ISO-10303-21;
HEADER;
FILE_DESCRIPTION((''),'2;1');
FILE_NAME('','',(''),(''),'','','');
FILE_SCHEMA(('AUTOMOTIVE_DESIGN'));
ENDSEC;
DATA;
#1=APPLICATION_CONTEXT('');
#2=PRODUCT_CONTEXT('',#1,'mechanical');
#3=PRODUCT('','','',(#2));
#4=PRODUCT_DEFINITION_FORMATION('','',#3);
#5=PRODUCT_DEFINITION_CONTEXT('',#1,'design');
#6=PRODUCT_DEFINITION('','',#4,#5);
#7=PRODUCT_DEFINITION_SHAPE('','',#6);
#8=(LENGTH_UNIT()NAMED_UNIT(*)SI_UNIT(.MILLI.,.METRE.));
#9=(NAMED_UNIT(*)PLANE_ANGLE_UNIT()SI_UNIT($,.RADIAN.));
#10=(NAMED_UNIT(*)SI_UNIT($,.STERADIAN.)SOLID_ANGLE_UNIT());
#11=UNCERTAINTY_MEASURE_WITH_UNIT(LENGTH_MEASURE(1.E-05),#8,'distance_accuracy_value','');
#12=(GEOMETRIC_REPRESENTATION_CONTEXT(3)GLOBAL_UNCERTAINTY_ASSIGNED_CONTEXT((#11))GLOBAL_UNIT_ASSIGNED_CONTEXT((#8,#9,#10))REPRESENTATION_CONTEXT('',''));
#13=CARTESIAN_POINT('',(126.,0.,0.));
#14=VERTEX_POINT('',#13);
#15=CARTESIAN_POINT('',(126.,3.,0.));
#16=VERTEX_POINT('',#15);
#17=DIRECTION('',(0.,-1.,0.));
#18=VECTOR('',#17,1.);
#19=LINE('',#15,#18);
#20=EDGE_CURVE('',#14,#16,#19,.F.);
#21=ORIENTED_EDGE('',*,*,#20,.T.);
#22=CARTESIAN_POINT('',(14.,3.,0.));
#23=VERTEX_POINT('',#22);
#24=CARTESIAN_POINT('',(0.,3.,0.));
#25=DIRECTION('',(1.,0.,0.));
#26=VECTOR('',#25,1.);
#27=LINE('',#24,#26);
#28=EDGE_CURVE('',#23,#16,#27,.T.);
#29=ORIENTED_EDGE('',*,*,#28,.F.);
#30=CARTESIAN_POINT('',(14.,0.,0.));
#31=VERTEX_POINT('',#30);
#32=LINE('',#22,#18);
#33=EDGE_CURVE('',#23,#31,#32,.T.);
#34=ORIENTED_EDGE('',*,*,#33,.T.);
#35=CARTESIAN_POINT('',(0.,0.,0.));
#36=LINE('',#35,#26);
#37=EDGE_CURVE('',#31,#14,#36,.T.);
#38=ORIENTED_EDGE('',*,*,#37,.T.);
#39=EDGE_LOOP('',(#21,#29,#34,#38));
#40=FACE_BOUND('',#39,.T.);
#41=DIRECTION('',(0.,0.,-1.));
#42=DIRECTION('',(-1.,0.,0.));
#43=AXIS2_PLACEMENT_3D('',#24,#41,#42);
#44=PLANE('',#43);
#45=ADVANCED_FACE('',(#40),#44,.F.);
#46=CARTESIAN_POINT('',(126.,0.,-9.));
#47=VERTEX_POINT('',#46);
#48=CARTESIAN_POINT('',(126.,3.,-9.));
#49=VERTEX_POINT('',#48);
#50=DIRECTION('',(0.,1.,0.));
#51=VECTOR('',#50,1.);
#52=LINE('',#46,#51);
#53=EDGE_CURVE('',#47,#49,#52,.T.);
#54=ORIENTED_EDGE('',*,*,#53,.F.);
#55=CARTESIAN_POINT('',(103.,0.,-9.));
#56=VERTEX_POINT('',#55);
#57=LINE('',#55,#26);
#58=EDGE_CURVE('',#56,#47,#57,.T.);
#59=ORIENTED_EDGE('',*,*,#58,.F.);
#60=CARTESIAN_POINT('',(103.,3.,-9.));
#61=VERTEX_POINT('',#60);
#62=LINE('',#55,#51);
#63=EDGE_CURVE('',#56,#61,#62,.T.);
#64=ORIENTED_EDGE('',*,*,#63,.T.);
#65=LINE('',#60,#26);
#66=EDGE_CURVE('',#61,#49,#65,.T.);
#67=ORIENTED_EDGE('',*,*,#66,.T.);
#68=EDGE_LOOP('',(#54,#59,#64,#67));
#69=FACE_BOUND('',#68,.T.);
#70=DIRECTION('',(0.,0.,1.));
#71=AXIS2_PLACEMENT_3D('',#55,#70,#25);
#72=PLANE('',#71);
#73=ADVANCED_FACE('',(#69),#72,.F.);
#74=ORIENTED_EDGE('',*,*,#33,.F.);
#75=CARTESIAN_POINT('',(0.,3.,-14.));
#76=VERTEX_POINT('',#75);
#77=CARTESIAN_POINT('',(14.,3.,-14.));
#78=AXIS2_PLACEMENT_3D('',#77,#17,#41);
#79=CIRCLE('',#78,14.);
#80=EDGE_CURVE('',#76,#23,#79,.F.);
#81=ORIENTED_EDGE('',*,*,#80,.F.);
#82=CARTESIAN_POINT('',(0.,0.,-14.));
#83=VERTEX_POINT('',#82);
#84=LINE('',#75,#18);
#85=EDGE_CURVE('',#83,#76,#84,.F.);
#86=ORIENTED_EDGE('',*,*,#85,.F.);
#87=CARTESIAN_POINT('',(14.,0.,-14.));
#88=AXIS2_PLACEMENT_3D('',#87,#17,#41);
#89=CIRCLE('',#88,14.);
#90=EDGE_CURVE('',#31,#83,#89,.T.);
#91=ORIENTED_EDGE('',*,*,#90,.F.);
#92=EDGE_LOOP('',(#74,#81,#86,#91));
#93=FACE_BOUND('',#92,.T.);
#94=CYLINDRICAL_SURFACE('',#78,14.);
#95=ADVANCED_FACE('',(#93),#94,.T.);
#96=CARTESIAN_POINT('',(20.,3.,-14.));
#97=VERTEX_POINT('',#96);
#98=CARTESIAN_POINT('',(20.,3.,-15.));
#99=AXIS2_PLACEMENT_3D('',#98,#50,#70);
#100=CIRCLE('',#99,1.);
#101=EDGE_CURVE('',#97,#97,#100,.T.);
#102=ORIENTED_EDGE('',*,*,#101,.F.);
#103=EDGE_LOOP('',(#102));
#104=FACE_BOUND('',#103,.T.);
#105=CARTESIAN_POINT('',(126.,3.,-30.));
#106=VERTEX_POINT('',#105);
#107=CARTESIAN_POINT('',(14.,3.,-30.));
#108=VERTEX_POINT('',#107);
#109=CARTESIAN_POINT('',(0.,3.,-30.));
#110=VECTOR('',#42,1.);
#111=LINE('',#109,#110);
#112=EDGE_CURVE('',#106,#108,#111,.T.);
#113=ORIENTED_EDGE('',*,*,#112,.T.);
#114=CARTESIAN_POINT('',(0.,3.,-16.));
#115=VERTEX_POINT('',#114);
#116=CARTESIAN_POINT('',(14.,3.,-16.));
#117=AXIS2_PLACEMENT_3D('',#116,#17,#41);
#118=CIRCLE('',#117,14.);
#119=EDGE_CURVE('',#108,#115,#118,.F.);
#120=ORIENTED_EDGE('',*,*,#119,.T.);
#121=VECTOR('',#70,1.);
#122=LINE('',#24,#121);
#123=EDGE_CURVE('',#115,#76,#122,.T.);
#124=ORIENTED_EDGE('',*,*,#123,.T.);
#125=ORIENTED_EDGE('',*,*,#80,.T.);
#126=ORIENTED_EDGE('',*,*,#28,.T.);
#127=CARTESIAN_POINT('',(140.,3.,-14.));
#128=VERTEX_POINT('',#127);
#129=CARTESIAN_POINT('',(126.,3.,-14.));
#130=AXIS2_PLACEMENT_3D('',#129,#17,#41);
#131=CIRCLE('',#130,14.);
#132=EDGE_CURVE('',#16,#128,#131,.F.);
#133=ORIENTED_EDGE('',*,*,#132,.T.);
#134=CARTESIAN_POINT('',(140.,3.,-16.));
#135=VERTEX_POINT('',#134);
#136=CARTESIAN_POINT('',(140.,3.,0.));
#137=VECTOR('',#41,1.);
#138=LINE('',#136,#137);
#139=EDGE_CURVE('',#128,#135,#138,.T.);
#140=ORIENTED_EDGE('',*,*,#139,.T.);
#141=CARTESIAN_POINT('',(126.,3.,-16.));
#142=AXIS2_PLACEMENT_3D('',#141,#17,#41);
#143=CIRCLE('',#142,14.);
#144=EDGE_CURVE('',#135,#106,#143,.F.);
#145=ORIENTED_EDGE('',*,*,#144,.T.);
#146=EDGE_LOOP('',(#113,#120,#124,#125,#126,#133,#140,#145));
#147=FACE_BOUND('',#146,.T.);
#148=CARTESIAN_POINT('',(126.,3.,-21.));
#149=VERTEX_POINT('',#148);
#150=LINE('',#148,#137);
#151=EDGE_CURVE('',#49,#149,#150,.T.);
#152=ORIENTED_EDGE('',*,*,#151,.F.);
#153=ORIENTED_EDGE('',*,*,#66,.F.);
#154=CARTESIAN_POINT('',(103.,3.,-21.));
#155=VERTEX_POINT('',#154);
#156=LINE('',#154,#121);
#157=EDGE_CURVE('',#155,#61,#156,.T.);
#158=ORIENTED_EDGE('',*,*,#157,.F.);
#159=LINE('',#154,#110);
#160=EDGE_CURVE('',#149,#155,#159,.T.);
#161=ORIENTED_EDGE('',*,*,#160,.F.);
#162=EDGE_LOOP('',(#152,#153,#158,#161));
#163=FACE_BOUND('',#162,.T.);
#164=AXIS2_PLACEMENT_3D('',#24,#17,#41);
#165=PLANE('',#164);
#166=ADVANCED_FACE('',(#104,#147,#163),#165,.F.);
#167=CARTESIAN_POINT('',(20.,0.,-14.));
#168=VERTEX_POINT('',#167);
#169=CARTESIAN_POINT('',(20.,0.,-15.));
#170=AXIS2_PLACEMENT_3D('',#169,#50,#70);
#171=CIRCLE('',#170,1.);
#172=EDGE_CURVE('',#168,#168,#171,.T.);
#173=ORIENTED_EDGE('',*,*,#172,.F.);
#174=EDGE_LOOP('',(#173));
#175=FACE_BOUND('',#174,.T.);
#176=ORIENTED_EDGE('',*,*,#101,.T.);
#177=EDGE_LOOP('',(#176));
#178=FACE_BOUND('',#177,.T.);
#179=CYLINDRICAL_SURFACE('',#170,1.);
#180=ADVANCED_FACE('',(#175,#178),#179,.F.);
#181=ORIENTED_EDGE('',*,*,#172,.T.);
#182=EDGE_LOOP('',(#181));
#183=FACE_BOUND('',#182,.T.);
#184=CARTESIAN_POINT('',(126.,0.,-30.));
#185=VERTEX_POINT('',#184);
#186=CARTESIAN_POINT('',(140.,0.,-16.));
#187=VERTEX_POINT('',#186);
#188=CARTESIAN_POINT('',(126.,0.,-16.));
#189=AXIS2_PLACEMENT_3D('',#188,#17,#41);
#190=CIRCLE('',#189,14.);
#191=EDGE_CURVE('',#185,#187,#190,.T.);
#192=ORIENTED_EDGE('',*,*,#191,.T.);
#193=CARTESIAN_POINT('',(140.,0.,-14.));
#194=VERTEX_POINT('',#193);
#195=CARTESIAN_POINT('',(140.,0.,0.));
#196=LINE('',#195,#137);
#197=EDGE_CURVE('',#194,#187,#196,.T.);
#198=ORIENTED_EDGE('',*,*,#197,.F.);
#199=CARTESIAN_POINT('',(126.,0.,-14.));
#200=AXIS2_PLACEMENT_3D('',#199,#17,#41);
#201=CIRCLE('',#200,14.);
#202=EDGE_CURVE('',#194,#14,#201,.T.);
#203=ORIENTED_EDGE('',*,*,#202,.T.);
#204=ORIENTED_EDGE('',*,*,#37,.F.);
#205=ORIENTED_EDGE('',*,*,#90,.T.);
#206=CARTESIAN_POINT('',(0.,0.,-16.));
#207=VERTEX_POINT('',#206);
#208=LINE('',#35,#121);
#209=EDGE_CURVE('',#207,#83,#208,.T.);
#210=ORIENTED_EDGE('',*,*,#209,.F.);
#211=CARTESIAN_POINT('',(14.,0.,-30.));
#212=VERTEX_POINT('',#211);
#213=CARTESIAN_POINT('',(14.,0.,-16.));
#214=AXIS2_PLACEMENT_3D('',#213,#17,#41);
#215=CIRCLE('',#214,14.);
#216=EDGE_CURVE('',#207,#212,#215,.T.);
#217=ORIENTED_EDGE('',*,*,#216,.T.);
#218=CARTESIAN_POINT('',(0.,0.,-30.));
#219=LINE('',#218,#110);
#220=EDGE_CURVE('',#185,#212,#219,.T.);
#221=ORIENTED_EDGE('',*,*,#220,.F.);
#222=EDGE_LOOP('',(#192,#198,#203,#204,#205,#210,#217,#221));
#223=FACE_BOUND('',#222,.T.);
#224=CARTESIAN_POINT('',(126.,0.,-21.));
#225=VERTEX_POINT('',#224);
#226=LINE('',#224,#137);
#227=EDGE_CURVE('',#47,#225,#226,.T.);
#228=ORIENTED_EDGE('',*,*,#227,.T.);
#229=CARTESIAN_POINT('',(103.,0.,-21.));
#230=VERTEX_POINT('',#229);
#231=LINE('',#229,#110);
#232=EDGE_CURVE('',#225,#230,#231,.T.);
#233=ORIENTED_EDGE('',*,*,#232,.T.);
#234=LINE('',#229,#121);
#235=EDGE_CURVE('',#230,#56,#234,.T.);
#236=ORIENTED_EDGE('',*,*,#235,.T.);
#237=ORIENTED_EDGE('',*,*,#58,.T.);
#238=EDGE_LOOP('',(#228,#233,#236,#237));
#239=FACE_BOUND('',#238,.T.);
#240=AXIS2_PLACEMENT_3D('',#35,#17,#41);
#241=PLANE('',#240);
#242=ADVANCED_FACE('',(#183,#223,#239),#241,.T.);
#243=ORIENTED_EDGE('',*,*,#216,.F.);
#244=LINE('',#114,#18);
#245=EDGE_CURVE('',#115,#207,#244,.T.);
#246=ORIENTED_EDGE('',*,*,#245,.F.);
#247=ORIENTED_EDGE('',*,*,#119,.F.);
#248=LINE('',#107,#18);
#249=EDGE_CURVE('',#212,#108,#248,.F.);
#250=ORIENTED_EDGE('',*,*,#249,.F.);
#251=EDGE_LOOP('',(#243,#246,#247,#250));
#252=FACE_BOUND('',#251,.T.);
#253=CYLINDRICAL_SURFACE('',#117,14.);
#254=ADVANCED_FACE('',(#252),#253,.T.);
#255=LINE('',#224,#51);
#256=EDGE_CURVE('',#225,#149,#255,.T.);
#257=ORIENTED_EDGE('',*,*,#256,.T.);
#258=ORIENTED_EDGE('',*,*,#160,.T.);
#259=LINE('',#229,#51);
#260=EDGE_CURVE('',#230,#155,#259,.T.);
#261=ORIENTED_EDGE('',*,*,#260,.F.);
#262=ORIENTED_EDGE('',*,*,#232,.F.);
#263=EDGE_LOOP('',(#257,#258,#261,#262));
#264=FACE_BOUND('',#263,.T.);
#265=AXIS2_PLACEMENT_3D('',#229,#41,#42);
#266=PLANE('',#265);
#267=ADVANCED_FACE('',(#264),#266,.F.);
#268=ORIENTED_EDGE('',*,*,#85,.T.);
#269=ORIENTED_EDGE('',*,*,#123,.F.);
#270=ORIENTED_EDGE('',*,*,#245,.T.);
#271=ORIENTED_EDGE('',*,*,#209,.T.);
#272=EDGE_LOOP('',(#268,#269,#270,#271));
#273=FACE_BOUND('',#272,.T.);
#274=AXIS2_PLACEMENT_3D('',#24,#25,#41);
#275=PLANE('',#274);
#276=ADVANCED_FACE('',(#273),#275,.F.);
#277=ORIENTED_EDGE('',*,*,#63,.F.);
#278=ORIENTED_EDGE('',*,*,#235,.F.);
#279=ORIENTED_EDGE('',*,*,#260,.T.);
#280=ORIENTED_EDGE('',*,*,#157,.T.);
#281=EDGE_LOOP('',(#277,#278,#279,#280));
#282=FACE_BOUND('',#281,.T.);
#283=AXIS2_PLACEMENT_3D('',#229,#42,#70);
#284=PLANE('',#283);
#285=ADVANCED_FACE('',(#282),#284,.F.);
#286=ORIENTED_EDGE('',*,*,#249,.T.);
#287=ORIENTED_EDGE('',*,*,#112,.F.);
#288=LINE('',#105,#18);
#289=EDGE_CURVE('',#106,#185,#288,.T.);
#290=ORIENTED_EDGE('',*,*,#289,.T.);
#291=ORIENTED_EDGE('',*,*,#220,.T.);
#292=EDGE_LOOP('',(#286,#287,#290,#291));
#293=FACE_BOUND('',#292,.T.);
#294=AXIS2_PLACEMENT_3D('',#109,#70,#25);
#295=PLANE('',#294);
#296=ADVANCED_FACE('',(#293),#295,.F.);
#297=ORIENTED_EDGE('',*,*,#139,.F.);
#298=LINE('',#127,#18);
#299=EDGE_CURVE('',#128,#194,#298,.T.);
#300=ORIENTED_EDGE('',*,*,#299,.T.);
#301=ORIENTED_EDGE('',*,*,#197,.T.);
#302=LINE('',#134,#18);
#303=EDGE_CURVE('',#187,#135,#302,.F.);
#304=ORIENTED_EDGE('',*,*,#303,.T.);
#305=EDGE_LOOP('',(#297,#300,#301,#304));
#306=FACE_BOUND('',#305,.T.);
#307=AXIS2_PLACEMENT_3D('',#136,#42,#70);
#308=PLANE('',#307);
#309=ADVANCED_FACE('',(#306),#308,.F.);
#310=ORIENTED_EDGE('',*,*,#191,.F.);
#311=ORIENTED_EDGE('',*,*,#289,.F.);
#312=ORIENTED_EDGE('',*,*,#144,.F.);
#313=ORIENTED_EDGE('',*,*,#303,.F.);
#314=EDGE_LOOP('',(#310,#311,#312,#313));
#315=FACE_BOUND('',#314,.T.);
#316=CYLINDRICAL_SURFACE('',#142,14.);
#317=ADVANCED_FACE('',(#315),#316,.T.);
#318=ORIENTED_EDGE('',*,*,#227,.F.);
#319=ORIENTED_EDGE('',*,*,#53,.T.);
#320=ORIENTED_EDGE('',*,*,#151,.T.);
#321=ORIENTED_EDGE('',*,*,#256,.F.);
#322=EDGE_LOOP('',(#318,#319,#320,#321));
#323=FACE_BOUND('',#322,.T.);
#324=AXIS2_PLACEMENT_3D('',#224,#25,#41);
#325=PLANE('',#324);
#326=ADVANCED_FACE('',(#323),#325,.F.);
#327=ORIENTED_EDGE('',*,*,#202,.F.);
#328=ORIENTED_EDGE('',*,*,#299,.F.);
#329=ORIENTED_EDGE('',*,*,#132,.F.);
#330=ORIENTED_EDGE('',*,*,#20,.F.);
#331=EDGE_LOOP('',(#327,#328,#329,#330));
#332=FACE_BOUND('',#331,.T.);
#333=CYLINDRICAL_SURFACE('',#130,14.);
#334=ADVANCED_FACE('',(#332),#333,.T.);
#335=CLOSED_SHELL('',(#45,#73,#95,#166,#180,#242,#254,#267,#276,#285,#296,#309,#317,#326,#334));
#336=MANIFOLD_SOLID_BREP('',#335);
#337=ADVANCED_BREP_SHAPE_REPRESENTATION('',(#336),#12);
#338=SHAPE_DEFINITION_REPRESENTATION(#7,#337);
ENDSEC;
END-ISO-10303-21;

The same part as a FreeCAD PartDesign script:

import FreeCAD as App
import Part
import Sketcher


def edges_at(feature, points):
    """Names of the edges that pass closest to the given points."""
    edges = feature.Shape.Edges
    near = lambda p: min(range(len(edges)), key=lambda i: edges[i].distToShape(Part.Vertex(*p))[0])
    return sorted({f"Edge{near(p) + 1}" for p in points})


def add_polygon(sketch, points):
    """Adds a closed chain of lines whose ends are joined by coincident constraints."""
    first, n = sketch.GeometryCount, len(points)
    for a, b in zip(points, points[1:] + points[:1]):
        sketch.addGeometry(Part.LineSegment(App.Vector(*a, 0), App.Vector(*b, 0)), False)
    for i in range(n):
        sketch.addConstraint(Sketcher.Constraint("Coincident", first + i, 2, first + (i + 1) % n, 1))

doc = App.newDocument("Part")
body = doc.addObject("PartDesign::Body", "Body")

sketch1 = body.newObject("Sketcher::SketchObject", "Sketch")
sketch1.AttachmentSupport = (doc.getObject("XZ_Plane"), [""])
sketch1.MapMode = "FlatFace"
add_polygon(sketch1, [(0, -30), (0, 0), (140, 0), (140, -30)])
sketch1.addConstraint([
    Sketcher.Constraint("Vertical", 0),
    Sketcher.Constraint("Horizontal", 1),
    Sketcher.Constraint("Vertical", 2),
    Sketcher.Constraint("Horizontal", 3),
    Sketcher.Constraint("Coincident", 0, 2, -1, 1),
    Sketcher.Constraint("DistanceX", 1, 1, 1, 2, 140.0),
    Sketcher.Constraint("DistanceY", 0, 1, 0, 2, 30.0),
])
pad1 = body.newObject("PartDesign::Pad", "Pad")
pad1.Profile = sketch1
pad1.Length = 3
pad1.Reversed = True

sketch2 = body.newObject("Sketcher::SketchObject", "Sketch001")
sketch2.AttachmentSupport = (doc.getObject("XZ_Plane"), [""])
sketch2.MapMode = "FlatFace"
sketch2.AttachmentOffset = App.Placement(App.Vector(0, 0, -3), App.Rotation())
sketch2.addGeometry(Part.Circle(App.Vector(20, -15, 0), App.Vector(0, 0, 1), 1), False)
add_polygon(sketch2, [(103, -21), (103, -9), (126, -9), (126, -21)])
sketch2.addConstraint([
    Sketcher.Constraint("Vertical", 1),
    Sketcher.Constraint("Horizontal", 2),
    Sketcher.Constraint("Vertical", 3),
    Sketcher.Constraint("Horizontal", 4),
    Sketcher.Constraint("Diameter", 0, 2.0),
    Sketcher.Constraint("DistanceX", 2, 1, 2, 2, 23.0),
    Sketcher.Constraint("DistanceY", 1, 1, 1, 2, 12.0),
    Sketcher.Constraint("DistanceX", -1, 1, 0, 3, 20.0),
    Sketcher.Constraint("DistanceY", 0, 3, -1, 1, 15.0),
    Sketcher.Constraint("DistanceX", -1, 1, 1, 2, 103.0),
    Sketcher.Constraint("DistanceY", 1, 2, -1, 1, 9.0),
])
pocket1 = body.newObject("PartDesign::Pocket", "Pocket")
pocket1.Profile = sketch2
pocket1.Type = "ThroughAll"
pocket1.Reversed = True
doc.recompute()

fillet = body.newObject("PartDesign::Fillet", "Fillet")
fillet.Base = (pocket1, edges_at(pocket1, [
    (0, 1.5, -30),
    (140, 1.5, -30),
    (140, 1.5, 0),
    (0, 1.5, 0),
]))
fillet.Radius = 14

doc.recompute()
